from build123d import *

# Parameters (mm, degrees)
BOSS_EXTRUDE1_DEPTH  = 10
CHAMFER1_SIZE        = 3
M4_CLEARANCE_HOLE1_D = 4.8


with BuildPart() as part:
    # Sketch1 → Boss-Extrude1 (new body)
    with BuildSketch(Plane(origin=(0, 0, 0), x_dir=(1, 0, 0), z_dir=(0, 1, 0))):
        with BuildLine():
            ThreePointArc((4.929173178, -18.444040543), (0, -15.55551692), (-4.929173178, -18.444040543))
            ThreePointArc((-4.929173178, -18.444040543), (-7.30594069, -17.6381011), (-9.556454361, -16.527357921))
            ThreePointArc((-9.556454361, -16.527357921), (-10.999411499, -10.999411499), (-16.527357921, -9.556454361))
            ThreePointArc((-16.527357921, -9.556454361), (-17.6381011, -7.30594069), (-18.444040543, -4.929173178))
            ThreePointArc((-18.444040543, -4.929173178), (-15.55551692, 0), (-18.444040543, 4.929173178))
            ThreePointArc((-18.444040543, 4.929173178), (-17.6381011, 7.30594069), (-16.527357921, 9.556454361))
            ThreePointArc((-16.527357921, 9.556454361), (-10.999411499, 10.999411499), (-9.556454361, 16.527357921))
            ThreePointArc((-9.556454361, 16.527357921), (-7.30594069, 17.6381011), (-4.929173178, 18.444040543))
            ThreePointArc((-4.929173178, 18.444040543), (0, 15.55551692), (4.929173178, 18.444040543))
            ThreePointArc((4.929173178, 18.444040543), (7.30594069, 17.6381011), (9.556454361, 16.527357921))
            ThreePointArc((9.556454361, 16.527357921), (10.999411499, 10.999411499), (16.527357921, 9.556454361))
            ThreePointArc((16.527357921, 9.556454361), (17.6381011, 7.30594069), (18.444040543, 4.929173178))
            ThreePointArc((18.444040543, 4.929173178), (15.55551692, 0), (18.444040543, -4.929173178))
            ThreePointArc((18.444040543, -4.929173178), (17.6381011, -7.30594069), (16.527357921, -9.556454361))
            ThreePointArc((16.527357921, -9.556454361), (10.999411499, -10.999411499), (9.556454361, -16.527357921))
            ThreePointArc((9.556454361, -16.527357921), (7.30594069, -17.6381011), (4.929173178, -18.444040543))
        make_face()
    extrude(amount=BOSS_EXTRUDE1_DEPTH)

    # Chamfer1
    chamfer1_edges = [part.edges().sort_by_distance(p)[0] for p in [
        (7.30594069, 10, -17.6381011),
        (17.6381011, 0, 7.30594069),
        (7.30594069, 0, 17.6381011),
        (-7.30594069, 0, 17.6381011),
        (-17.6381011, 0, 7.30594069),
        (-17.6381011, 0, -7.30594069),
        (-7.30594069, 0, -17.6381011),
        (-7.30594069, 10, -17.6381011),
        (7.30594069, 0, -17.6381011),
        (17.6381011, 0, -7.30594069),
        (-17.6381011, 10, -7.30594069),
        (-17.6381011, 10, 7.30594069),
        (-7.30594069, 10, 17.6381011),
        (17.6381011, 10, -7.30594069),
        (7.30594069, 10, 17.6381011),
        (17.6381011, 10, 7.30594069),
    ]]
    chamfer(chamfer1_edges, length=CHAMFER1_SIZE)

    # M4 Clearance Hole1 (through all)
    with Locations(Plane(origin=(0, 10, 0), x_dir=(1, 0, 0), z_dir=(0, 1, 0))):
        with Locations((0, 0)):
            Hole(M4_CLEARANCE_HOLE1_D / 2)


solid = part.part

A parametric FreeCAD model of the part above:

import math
import FreeCAD as App
import Part
import Sketcher
from FreeCAD import Vector


def edges_at(feature, points):
    """Names of the edges that pass closest to the given points."""
    edges = feature.Shape.Edges
    near = lambda p: min(range(len(edges)), key=lambda i: edges[i].distToShape(Part.Vertex(*p))[0])
    return sorted({f"Edge{near(p) + 1}" for p in points})

doc = App.newDocument("Part")
body = doc.addObject("PartDesign::Body", "Body")

# Sketch on XZ plane
sketch1 = body.newObject("Sketcher::SketchObject", "Sketch")
sketch1.AttachmentSupport = (doc.getObject("XZ_Plane"), [""])
sketch1.MapMode = "FlatFace"
sketch1.addGeometry(Part.ArcOfCircle(Part.Circle(Vector(0, 21, 0), Vector(0, 0, 1), 6), math.radians(-151), math.radians(-29)), False)
sketch1.addGeometry(Part.ArcOfCircle(Part.Circle(Vector(0, 0, 0), Vector(0, 0, 1), 19), math.radians(59.96), math.radians(75.04)), False)
sketch1.addGeometry(Part.ArcOfCircle(Part.Circle(Vector(15, 15, 0), Vector(0, 0, 1), 6), math.radians(164), math.radians(286)), False)
sketch1.addGeometry(Part.ArcOfCircle(Part.Circle(Vector(0, 0, 0), Vector(0, 0, 1), 19), math.radians(14.96), math.radians(30.04)), False)
sketch1.addGeometry(Part.ArcOfCircle(Part.Circle(Vector(21, 0, 0), Vector(0, 0, 1), 6), math.radians(119), math.radians(241)), False)
sketch1.addGeometry(Part.ArcOfCircle(Part.Circle(Vector(0, 0, 0), Vector(0, 0, 1), 19), math.radians(-30.04), math.radians(-14.96)), False)
sketch1.addGeometry(Part.ArcOfCircle(Part.Circle(Vector(15, -15, 0), Vector(0, 0, 1), 6), math.radians(74), math.radians(196)), False)
sketch1.addGeometry(Part.ArcOfCircle(Part.Circle(Vector(0, 0, 0), Vector(0, 0, 1), 19), math.radians(-75.04), math.radians(-59.96)), False)
sketch1.addGeometry(Part.ArcOfCircle(Part.Circle(Vector(0, -21, 0), Vector(0, 0, 1), 6), math.radians(29), math.radians(151)), False)
sketch1.addGeometry(Part.ArcOfCircle(Part.Circle(Vector(0, 0, 0), Vector(0, 0, 1), 19), math.radians(-120.04), math.radians(-104.96)), False)
sketch1.addGeometry(Part.ArcOfCircle(Part.Circle(Vector(-15, -15, 0), Vector(0, 0, 1), 6), math.radians(-16), math.radians(106)), False)
sketch1.addGeometry(Part.ArcOfCircle(Part.Circle(Vector(0, 0, 0), Vector(0, 0, 1), 19), math.radians(-165.04), math.radians(-149.96)), False)
sketch1.addGeometry(Part.ArcOfCircle(Part.Circle(Vector(-21, 0, 0), Vector(0, 0, 1), 6), math.radians(-61), math.radians(61)), False)
sketch1.addGeometry(Part.ArcOfCircle(Part.Circle(Vector(0, 0, 0), Vector(0, 0, 1), 19), math.radians(149.96), math.radians(165.04)), False)
sketch1.addGeometry(Part.ArcOfCircle(Part.Circle(Vector(-15, 15, 0), Vector(0, 0, 1), 6), math.radians(-106), math.radians(16)), False)
sketch1.addGeometry(Part.ArcOfCircle(Part.Circle(Vector(0, 0, 0), Vector(0, 0, 1), 19), math.radians(104.96), math.radians(120.04)), False)
sketch1.addConstraint(Sketcher.Constraint("Coincident", 0, 2, 1, 2))
sketch1.addConstraint(Sketcher.Constraint("Coincident", 1, 1, 2, 1))
sketch1.addConstraint(Sketcher.Constraint("Coincident", 2, 2, 3, 2))
sketch1.addConstraint(Sketcher.Constraint("Coincident", 3, 1, 4, 1))
sketch1.addConstraint(Sketcher.Constraint("Coincident", 4, 2, 5, 2))
sketch1.addConstraint(Sketcher.Constraint("Coincident", 5, 1, 6, 1))
sketch1.addConstraint(Sketcher.Constraint("Coincident", 6, 2, 7, 2))
sketch1.addConstraint(Sketcher.Constraint("Coincident", 7, 1, 8, 1))
sketch1.addConstraint(Sketcher.Constraint("Coincident", 8, 2, 9, 2))
sketch1.addConstraint(Sketcher.Constraint("Coincident", 9, 1, 10, 1))
sketch1.addConstraint(Sketcher.Constraint("Coincident", 10, 2, 11, 2))
sketch1.addConstraint(Sketcher.Constraint("Coincident", 11, 1, 12, 1))
sketch1.addConstraint(Sketcher.Constraint("Coincident", 12, 2, 13, 2))
sketch1.addConstraint(Sketcher.Constraint("Coincident", 13, 1, 14, 1))
sketch1.addConstraint(Sketcher.Constraint("Coincident", 14, 2, 15, 2))
sketch1.addConstraint(Sketcher.Constraint("Coincident", 15, 1, 0, 1))
sketch1.addConstraint(Sketcher.Constraint("Coincident", 1, 3, -1, 1))
sketch1.addConstraint(Sketcher.Constraint("Coincident", 3, 3, -1, 1))
sketch1.addConstraint(Sketcher.Constraint("Coincident", 5, 3, -1, 1))
sketch1.addConstraint(Sketcher.Constraint("Coincident", 7, 3, -1, 1))
sketch1.addConstraint(Sketcher.Constraint("Coincident", 9, 3, -1, 1))
sketch1.addConstraint(Sketcher.Constraint("Coincident", 11, 3, -1, 1))
sketch1.addConstraint(Sketcher.Constraint("Coincident", 13, 3, -1, 1))
sketch1.addConstraint(Sketcher.Constraint("Coincident", 15, 3, -1, 1))
sketch1.addConstraint(Sketcher.Constraint("Equal", 0, 2))
sketch1.addConstraint(Sketcher.Constraint("Equal", 1, 3))
sketch1.addConstraint(Sketcher.Constraint("Equal", 2, 4))
sketch1.addConstraint(Sketcher.Constraint("Equal", 3, 5))
sketch1.addConstraint(Sketcher.Constraint("Equal", 4, 6))
sketch1.addConstraint(Sketcher.Constraint("Equal", 5, 7))
sketch1.addConstraint(Sketcher.Constraint("Equal", 6, 8))
sketch1.addConstraint(Sketcher.Constraint("Equal", 7, 9))
sketch1.addConstraint(Sketcher.Constraint("Equal", 8, 10))
sketch1.addConstraint(Sketcher.Constraint("Equal", 9, 11))
sketch1.addConstraint(Sketcher.Constraint("Equal", 10, 12))
sketch1.addConstraint(Sketcher.Constraint("Equal", 11, 13))
sketch1.addConstraint(Sketcher.Constraint("Equal", 12, 14))
sketch1.addConstraint(Sketcher.Constraint("Equal", 13, 15))
sketch1.addConstraint(Sketcher.Constraint("Symmetric", 0, 3, 8, 3, -1, 1))
sketch1.addConstraint(Sketcher.Constraint("Symmetric", 2, 3, 10, 3, -1, 1))
sketch1.addConstraint(Sketcher.Constraint("Symmetric", 4, 3, 12, 3, -1, 1))
sketch1.addConstraint(Sketcher.Constraint("Symmetric", 6, 3, 14, 3, -1, 1))
sketch1.addConstraint(Sketcher.Constraint("Symmetric", 6, 3, 10, 3, -2))
sketch1.addConstraint(Sketcher.Constraint("PointOnObject", 0, 3, -2))
sketch1.addConstraint(Sketcher.Constraint("PointOnObject", 4, 3, -1))
sketch1.addConstraint(Sketcher.Constraint("Radius", 0, 5.65))
sketch1.addConstraint(Sketcher.Constraint("Radius", 1, 19.091343))
sketch1.addConstraint(Sketcher.Constraint("DistanceY", -1, 1, 0, 2, 18.444041))
sketch1.addConstraint(Sketcher.Constraint("DistanceX", -1, 1, 3, 1, 18.444041))
sketch1.addConstraint(Sketcher.Constraint("DistanceY", 6, 3, 2, 3, 29.98913))
sketch1.addConstraint(Sketcher.Constraint("DistanceX", 0, 2, 2, 3, 10.065392))
pad1 = body.newObject("PartDesign::Pad", "Pad")
pad1.Profile = sketch1
pad1.Length = 10
pad1.Reversed = True
doc.recompute()

chamfer = body.newObject("PartDesign::Chamfer", "Chamfer")
chamfer.Base = (pad1, edges_at(pad1, [
    (7.306, 10, -17.638),
    (17.638, 0, 7.306),
    (7.306, 0, 17.638),
    (-7.306, 0, 17.638),
    (-17.638, 0, 7.306),
    (-17.638, 0, -7.306),
    (-7.306, 0, -17.638),
    (-7.306, 10, -17.638),
    (7.306, 0, -17.638),
    (17.638, 0, -7.306),
    (-17.638, 10, -7.306),
    (-17.638, 10, 7.306),
    (-7.306, 10, 17.638),
    (17.638, 10, -7.306),
    (7.306, 10, 17.638),
    (17.638, 10, 7.306),
]))
chamfer.Size = 3

# Sketch on XZ plane
sketch2 = body.newObject("Sketcher::SketchObject", "Sketch001")
sketch2.AttachmentSupport = (doc.getObject("XZ_Plane"), [""])
sketch2.MapMode = "FlatFace"
sketch2.AttachmentOffset = App.Placement(Vector(0, 0, -10), App.Rotation())
sketch2.addGeometry(Part.Circle(Vector(0, 0, 0), Vector(0, 0, 1), 2.4), False)
sketch2.addConstraint(Sketcher.Constraint("Coincident", 0, 3, -1, 1))
sketch2.addConstraint(Sketcher.Constraint("Diameter", 0, 4.8))
doc.recompute()
hole = body.newObject("PartDesign::Hole", "Hole")
hole.Profile = sketch2
hole.ThreadType = "None"
hole.Diameter = 4.8
hole.DepthType = "ThroughAll"
hole.Reversed = True

doc.recompute()
